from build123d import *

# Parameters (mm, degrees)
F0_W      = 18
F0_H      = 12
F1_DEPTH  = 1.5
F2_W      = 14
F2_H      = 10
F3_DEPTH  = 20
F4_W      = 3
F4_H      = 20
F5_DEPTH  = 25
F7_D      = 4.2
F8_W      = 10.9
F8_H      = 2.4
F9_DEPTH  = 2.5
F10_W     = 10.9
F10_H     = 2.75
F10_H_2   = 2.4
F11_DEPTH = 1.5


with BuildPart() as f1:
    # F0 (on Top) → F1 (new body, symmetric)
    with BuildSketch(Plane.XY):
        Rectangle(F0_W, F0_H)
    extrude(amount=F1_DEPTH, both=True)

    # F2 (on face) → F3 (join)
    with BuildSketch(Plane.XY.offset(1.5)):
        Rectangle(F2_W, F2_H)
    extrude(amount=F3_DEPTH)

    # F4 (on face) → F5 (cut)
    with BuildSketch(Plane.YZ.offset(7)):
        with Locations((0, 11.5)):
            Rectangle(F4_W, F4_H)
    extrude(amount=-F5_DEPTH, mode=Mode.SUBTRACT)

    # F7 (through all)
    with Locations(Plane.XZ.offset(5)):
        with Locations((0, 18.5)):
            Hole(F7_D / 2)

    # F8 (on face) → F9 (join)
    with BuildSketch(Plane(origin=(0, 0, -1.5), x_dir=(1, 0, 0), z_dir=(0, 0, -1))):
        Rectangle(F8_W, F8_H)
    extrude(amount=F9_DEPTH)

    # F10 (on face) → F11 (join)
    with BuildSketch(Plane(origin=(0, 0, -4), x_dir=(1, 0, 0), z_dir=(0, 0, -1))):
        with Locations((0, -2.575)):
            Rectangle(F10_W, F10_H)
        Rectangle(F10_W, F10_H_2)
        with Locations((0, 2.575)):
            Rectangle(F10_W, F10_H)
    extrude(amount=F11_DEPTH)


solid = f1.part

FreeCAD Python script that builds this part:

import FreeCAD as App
import Part
import Sketcher
from FreeCAD import Vector


def add_polygon(sketch, points):
    """Adds a closed chain of lines whose ends are joined by coincident constraints."""
    first, n = sketch.GeometryCount, len(points)
    for a, b in zip(points, points[1:] + points[:1]):
        sketch.addGeometry(Part.LineSegment(App.Vector(*a, 0), App.Vector(*b, 0)), False)
    for i in range(n):
        sketch.addConstraint(Sketcher.Constraint("Coincident", first + i, 2, first + (i + 1) % n, 1))

doc = App.newDocument("Part")
params = doc.addObject("Spreadsheet::Sheet", "Params")
for row, (alias, value) in enumerate([
    ("sketch1_width", "18 mm"),
    ("sketch1_height", "12 mm"),
    ("pad1_length", "3 mm"),
    ("sketch2_width", "14 mm"),
    ("sketch2_height", "10 mm"),
    ("pad2_length", "20 mm"),
    ("sketch3_width", "3 mm"),
    ("sketch3_height", "20 mm"),
    ("pocket1_length", "25 mm"),
    ("sketch4_diameter", "4.2 mm"),
    ("hole_diameter", "4.2 mm"),
    ("sketch5_width", "10.9 mm"),
    ("sketch5_height", "2.4 mm"),
    ("pad3_length", "2.5 mm"),
    ("sketch6_width", "10.9 mm"),
    ("sketch6_height", "7.9 mm"),
    ("pad4_length", "1.5 mm"),
], start=1):
    params.set(f"A{row}", alias)
    params.set(f"B{row}", "=" + value)
    params.setAlias(f"B{row}", alias)

body = doc.addObject("PartDesign::Body", "Body")

# Sketch on XY plane
sketch1 = body.newObject("Sketcher::SketchObject", "Sketch")
sketch1.AttachmentSupport = (doc.getObject("XY_Plane"), [""])
sketch1.MapMode = "FlatFace"
add_polygon(sketch1, [(-9, 6), (-9, -6), (9, -6), (9, 6)])  # lines 0-3
sketch1.addConstraint([
    Sketcher.Constraint("Vertical", 0),
    Sketcher.Constraint("Horizontal", 1),
    Sketcher.Constraint("Vertical", 2),
    Sketcher.Constraint("Horizontal", 3),
    Sketcher.Constraint("Symmetric", 0, 2, 2, 2, -1, 1),
    Sketcher.Constraint("DistanceX", 1, 1, 1, 2, 18.0),
    Sketcher.Constraint("DistanceY", 0, 2, 0, 1, 12.0),
])
sketch1.setExpression("Constraints[9]", "Params.sketch1_width")
sketch1.setExpression("Constraints[10]", "Params.sketch1_height")
pad1 = body.newObject("PartDesign::Pad", "Pad")
pad1.Profile = sketch1
pad1.setExpression("Length", "Params.pad1_length")
pad1.Midplane = True

# Sketch on XY plane
sketch2 = body.newObject("Sketcher::SketchObject", "Sketch001")
sketch2.AttachmentSupport = (doc.getObject("XY_Plane"), [""])
sketch2.MapMode = "FlatFace"
sketch2.AttachmentOffset = App.Placement(Vector(0, 0, 1.5), App.Rotation())
add_polygon(sketch2, [(-7, 5), (-7, -5), (7, -5), (7, 5)])  # lines 0-3
sketch2.addConstraint([
    Sketcher.Constraint("Vertical", 0),
    Sketcher.Constraint("Horizontal", 1),
    Sketcher.Constraint("Vertical", 2),
    Sketcher.Constraint("Horizontal", 3),
    Sketcher.Constraint("Symmetric", 0, 2, 2, 2, -1, 1),
    Sketcher.Constraint("DistanceX", 1, 1, 1, 2, 14.0),
    Sketcher.Constraint("DistanceY", 0, 2, 0, 1, 10.0),
])
sketch2.setExpression("Constraints[9]", "Params.sketch2_width")
sketch2.setExpression("Constraints[10]", "Params.sketch2_height")
pad2 = body.newObject("PartDesign::Pad", "Pad001")
pad2.Profile = sketch2
pad2.setExpression("Length", "Params.pad2_length")

# Sketch on YZ plane
sketch3 = body.newObject("Sketcher::SketchObject", "Sketch002")
sketch3.AttachmentSupport = (doc.getObject("YZ_Plane"), [""])
sketch3.MapMode = "FlatFace"
sketch3.AttachmentOffset = App.Placement(Vector(0, 0, 7), App.Rotation())
add_polygon(sketch3, [(-1.5, 21.5), (-1.5, 1.5), (1.5, 1.5), (1.5, 21.5)])  # lines 0-3
sketch3.addConstraint([
    Sketcher.Constraint("Vertical", 0),
    Sketcher.Constraint("Horizontal", 1),
    Sketcher.Constraint("Vertical", 2),
    Sketcher.Constraint("Horizontal", 3),
    Sketcher.Constraint("DistanceX", 1, 1, 1, 2, 3.0),
    Sketcher.Constraint("DistanceY", 0, 2, 0, 1, 20.0),
    Sketcher.Constraint("DistanceX", 0, 2, -1, 1, 1.5),
    Sketcher.Constraint("DistanceY", -1, 1, 0, 2, 1.5),
])
sketch3.setExpression("Constraints[8]", "Params.sketch3_width")
sketch3.setExpression("Constraints[9]", "Params.sketch3_height")
pocket1 = body.newObject("PartDesign::Pocket", "Pocket")
pocket1.Profile = sketch3
pocket1.setExpression("Length", "Params.pocket1_length")

# Sketch on XZ plane
sketch4 = body.newObject("Sketcher::SketchObject", "Sketch003")
sketch4.AttachmentSupport = (doc.getObject("XZ_Plane"), [""])
sketch4.MapMode = "FlatFace"
sketch4.AttachmentOffset = App.Placement(Vector(0, 0, 5), App.Rotation())
sketch4.addGeometry(Part.Circle(Vector(0, 18.5, 0), Vector(0, 0, 1), 2.1), False)
sketch4.addConstraint([
    Sketcher.Constraint("PointOnObject", 0, 3, -2),
    Sketcher.Constraint("Diameter", 0, 4.2),
    Sketcher.Constraint("DistanceY", -1, 1, 0, 3, 18.5),
])
sketch4.setExpression("Constraints[1]", "Params.sketch4_diameter")
doc.recompute()
hole = body.newObject("PartDesign::Hole", "Hole")
hole.Profile = sketch4
hole.ThreadType = "None"
hole.setExpression("Diameter", "Params.hole_diameter")
hole.DepthType = "ThroughAll"

# Sketch on XY plane
sketch5 = body.newObject("Sketcher::SketchObject", "Sketch004")
sketch5.AttachmentSupport = (doc.getObject("XY_Plane"), [""])
sketch5.MapMode = "FlatFace"
sketch5.AttachmentOffset = App.Placement(Vector(0, 0, -1.5), App.Rotation())
add_polygon(sketch5, [(-5.5, -1.2), (-5.5, 1.2), (5.5, 1.2), (5.5, -1.2)])  # lines 0-3
sketch5.addConstraint([
    Sketcher.Constraint("Vertical", 0),
    Sketcher.Constraint("Horizontal", 1),
    Sketcher.Constraint("Vertical", 2),
    Sketcher.Constraint("Horizontal", 3),
    Sketcher.Constraint("Symmetric", 0, 2, 2, 2, -1, 1),
    Sketcher.Constraint("DistanceX", 1, 1, 1, 2, 10.9),
    Sketcher.Constraint("DistanceY", 0, 1, 0, 2, 2.4),
])
sketch5.setExpression("Constraints[9]", "Params.sketch5_width")
sketch5.setExpression("Constraints[10]", "Params.sketch5_height")
pad3 = body.newObject("PartDesign::Pad", "Pad002")
pad3.Profile = sketch5
pad3.setExpression("Length", "Params.pad3_length")
pad3.Reversed = True

# Sketch on XY plane
sketch6 = body.newObject("Sketcher::SketchObject", "Sketch005")
sketch6.AttachmentSupport = (doc.getObject("XY_Plane"), [""])
sketch6.MapMode = "FlatFace"
sketch6.AttachmentOffset = App.Placement(Vector(0, 0, -4), App.Rotation())
add_polygon(sketch6, [(-5, 4), (5, 4), (5, -4), (-5, -4)])  # lines 0-3
sketch6.addConstraint([
    Sketcher.Constraint("Horizontal", 0),
    Sketcher.Constraint("Vertical", 1),
    Sketcher.Constraint("Horizontal", 2),
    Sketcher.Constraint("Vertical", 3),
    Sketcher.Constraint("Symmetric", 0, 2, 2, 2, -1, 1),
    Sketcher.Constraint("DistanceX", 0, 1, 0, 2, 10.9),
    Sketcher.Constraint("DistanceY", 1, 2, 1, 1, 7.9),
])
sketch6.setExpression("Constraints[9]", "Params.sketch6_width")
sketch6.setExpression("Constraints[10]", "Params.sketch6_height")
pad4 = body.newObject("PartDesign::Pad", "Pad003")
pad4.Profile = sketch6
pad4.setExpression("Length", "Params.pad4_length")
pad4.Reversed = True

doc.recompute()
